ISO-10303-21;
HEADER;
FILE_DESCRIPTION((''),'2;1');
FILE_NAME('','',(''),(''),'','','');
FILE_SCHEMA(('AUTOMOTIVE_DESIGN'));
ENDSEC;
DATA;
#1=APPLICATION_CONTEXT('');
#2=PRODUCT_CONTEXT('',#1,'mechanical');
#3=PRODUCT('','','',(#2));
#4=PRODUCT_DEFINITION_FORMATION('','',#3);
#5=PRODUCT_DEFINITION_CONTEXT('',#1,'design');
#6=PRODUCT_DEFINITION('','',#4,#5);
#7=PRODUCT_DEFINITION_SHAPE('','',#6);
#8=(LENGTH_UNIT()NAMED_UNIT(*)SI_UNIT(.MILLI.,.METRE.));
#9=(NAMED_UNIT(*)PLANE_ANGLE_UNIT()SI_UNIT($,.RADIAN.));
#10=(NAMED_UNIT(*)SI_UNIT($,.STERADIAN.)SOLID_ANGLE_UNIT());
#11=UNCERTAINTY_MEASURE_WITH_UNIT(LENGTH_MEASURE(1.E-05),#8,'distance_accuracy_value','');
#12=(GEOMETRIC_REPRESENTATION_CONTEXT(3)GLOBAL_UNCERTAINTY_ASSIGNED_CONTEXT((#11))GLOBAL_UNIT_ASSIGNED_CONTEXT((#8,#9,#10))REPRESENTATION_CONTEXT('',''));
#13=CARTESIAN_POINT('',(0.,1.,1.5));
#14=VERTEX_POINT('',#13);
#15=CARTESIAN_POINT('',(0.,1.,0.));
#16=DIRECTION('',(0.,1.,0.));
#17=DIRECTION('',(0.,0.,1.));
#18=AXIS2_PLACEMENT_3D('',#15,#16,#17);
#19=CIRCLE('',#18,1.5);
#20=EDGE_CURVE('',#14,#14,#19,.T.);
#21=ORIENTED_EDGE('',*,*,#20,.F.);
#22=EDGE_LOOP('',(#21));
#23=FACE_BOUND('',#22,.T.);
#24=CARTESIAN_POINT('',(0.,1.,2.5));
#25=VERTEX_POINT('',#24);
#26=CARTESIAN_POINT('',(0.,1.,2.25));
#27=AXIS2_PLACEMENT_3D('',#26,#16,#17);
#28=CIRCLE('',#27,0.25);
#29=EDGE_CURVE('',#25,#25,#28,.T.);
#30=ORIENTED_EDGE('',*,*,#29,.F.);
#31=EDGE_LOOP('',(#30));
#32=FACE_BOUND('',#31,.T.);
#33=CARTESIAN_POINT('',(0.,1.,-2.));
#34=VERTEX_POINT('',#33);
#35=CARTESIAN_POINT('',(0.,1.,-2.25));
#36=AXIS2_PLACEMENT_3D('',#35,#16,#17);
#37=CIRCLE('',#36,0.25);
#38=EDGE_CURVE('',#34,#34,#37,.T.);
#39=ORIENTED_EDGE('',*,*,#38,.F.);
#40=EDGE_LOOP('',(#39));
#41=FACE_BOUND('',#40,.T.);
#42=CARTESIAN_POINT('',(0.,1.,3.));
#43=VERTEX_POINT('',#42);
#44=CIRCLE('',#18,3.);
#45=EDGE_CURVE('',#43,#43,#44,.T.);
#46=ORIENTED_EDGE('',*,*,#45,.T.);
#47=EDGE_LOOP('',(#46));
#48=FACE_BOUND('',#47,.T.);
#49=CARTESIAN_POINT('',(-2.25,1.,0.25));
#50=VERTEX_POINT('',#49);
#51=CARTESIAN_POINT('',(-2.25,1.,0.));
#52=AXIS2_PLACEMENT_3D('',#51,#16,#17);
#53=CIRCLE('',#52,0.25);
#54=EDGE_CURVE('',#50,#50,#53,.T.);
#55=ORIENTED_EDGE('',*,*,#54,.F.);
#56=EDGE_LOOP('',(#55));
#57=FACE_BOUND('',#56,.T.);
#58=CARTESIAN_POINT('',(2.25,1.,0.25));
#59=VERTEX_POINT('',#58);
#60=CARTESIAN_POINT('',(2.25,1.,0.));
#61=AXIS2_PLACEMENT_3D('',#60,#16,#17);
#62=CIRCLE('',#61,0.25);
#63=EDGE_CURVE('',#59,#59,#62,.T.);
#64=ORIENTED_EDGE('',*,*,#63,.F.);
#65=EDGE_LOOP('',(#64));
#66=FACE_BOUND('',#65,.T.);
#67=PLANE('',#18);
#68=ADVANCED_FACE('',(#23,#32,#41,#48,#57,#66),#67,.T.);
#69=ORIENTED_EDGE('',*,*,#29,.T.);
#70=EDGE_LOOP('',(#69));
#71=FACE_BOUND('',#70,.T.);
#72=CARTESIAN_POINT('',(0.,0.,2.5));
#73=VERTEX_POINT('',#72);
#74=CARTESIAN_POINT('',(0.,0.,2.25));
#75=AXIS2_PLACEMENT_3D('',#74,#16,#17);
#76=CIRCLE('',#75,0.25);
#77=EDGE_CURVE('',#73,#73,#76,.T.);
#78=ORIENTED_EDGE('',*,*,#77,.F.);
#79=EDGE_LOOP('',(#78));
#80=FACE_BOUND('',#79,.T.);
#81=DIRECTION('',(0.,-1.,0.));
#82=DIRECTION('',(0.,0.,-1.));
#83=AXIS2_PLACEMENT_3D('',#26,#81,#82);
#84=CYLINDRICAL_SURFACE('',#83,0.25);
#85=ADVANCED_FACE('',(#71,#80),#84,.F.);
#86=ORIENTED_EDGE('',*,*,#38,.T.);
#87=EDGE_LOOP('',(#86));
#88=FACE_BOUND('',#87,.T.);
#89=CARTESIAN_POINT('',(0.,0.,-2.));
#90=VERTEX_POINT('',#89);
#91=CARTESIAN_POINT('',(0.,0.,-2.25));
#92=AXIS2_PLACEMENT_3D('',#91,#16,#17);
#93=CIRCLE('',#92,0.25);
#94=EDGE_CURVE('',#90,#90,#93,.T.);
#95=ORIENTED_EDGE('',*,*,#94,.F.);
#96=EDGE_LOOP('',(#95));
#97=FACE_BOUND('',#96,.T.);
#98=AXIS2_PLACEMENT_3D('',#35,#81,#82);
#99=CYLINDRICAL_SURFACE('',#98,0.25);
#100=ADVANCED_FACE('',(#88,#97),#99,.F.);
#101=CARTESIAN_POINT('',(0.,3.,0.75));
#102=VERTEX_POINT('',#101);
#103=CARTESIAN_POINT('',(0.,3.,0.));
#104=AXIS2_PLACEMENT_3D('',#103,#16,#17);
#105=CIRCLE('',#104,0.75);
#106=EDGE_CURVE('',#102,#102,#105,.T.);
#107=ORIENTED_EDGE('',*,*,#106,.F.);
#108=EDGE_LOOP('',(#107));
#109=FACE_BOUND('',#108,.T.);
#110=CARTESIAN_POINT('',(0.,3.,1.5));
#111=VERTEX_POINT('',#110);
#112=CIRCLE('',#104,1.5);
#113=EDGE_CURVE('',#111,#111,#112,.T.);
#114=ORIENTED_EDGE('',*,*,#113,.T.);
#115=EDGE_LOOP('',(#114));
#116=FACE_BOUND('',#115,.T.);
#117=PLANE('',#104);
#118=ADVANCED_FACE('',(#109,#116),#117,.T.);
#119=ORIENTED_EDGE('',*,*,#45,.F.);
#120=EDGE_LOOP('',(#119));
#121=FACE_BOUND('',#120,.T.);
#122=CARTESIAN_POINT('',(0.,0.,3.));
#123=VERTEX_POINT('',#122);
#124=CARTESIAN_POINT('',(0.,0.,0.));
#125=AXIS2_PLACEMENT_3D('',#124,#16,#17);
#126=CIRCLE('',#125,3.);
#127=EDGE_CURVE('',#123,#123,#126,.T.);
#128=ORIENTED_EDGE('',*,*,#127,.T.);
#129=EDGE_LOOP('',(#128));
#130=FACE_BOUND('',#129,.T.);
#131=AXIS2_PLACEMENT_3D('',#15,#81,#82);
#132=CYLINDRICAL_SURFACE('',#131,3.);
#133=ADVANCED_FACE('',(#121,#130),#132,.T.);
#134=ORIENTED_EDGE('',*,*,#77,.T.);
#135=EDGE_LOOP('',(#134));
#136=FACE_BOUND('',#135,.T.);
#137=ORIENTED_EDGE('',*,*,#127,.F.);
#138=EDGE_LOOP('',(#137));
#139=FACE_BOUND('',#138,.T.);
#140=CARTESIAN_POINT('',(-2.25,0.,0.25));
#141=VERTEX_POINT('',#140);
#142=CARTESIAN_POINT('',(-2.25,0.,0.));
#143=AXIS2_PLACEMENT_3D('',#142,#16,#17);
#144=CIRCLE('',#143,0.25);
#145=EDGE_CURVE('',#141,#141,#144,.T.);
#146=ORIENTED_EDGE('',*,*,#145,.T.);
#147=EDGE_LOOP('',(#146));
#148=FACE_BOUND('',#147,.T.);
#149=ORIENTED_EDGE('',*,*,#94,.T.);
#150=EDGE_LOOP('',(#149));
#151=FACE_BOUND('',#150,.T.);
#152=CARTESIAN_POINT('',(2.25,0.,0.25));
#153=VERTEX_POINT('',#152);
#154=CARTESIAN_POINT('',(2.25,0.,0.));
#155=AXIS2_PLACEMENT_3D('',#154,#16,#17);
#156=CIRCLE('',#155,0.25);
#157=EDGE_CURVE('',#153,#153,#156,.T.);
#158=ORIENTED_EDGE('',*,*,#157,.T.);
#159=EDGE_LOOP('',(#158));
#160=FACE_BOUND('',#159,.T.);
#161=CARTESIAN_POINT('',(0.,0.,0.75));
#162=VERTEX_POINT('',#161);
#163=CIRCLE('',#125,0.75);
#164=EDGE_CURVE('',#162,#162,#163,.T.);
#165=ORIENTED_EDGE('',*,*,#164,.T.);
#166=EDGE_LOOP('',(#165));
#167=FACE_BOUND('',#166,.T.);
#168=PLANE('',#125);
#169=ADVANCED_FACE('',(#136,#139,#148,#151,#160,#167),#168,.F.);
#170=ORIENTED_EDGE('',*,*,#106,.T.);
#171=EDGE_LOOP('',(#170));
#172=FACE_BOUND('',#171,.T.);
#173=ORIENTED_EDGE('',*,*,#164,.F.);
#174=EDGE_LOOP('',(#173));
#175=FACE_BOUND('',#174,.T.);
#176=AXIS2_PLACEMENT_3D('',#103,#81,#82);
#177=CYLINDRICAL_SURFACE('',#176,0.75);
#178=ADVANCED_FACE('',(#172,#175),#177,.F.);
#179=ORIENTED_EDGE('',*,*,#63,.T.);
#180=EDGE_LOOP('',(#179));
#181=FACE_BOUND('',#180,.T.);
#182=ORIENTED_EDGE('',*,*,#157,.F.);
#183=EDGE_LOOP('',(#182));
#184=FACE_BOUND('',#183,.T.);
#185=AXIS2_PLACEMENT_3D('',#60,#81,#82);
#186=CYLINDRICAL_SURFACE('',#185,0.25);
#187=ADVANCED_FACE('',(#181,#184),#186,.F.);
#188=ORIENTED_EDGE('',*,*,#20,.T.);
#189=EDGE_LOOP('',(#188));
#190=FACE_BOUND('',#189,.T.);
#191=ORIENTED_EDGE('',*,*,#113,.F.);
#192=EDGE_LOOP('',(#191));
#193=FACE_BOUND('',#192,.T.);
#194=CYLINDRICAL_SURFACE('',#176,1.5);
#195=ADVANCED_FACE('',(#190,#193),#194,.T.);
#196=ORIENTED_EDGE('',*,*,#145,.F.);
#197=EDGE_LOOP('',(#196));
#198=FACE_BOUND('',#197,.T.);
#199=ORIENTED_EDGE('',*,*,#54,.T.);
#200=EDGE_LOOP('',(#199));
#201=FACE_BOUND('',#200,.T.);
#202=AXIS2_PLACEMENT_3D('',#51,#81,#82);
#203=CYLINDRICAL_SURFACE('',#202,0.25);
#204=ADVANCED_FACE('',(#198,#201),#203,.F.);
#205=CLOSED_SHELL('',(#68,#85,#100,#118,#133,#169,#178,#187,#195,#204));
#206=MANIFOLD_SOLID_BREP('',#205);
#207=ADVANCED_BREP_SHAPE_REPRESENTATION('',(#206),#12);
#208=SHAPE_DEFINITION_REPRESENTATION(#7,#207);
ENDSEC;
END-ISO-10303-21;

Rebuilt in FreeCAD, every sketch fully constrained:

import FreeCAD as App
import Part
import Sketcher
Q = App.Units.Quantity

doc = App.newDocument("Part")
body = doc.addObject("PartDesign::Body", "Body")

# Sketch on XZ plane
sketch1 = body.newObject("Sketcher::SketchObject", "Sketch")
sketch1.AttachmentSupport = (doc.getObject("XZ_Plane"), [""])
sketch1.MapMode = "FlatFace"
sketch1.addGeometry([
    Part.Circle(App.Vector(0, 0, 0), App.Vector(0, 0, 1), 3),  # 0
    Part.Circle(App.Vector(0, 2.25, 0), App.Vector(0, 0, 1), 0.25),  # 1
    Part.Circle(App.Vector(-2.25, 0, 0), App.Vector(0, 0, 1), 0.25),  # 2
    Part.Circle(App.Vector(0, 0, 0), App.Vector(0, 0, 1), 1.5),  # 3
    Part.Circle(App.Vector(2.25, 0, 0), App.Vector(0, 0, 1), 0.25),  # 4
    Part.Circle(App.Vector(0, -2.25, 0), App.Vector(0, 0, 1), 0.25),  # 5
], False)
sketch1.addConstraint([
    Sketcher.Constraint("Coincident", 0, 3, -1, 1),
    Sketcher.Constraint("Coincident", 3, 3, -1, 1),
    Sketcher.Constraint("Equal", 1, 2),
    Sketcher.Constraint("Equal", 2, 4),
    Sketcher.Constraint("Equal", 4, 5),
    Sketcher.Constraint("Symmetric", 2, 3, 4, 3, -1, 1),
    Sketcher.Constraint("Symmetric", 1, 3, 5, 3, -1, 1),
    Sketcher.Constraint("PointOnObject", 1, 3, -2),
    Sketcher.Constraint("PointOnObject", 2, 3, -1),
    Sketcher.Constraint("Diameter", 0, Q("6 mm")),
    Sketcher.Constraint("Diameter", 3, Q("3 mm")),
    Sketcher.Constraint("Diameter", 1, Q("0.5 mm")),
    Sketcher.Constraint("DistanceX", 2, 3, 4, 3, Q("4.5 mm")),
    Sketcher.Constraint("DistanceY", 5, 3, 1, 3, Q("4.5 mm")),
])
pad1 = body.newObject("PartDesign::Pad", "Pad")
pad1.Profile = sketch1
pad1.Length = 1
pad1.Reversed = True

# Sketch on XZ plane
sketch2 = body.newObject("Sketcher::SketchObject", "Sketch001")
sketch2.AttachmentSupport = (doc.getObject("XZ_Plane"), [""])
sketch2.MapMode = "FlatFace"
sketch2.addGeometry([
    Part.Circle(App.Vector(0, 0, 0), App.Vector(0, 0, 1), 1.5),
    Part.Circle(App.Vector(0, 0, 0), App.Vector(0, 0, 1), 0.8),
], False)
sketch2.addConstraint([
    Sketcher.Constraint("Coincident", 0, 3, -1, 1),
    Sketcher.Constraint("Coincident", 1, 3, -1, 1),
    Sketcher.Constraint("Diameter", 0, Q("3 mm")),
    Sketcher.Constraint("Diameter", 1, Q("1.5 mm")),
])
pad2 = body.newObject("PartDesign::Pad", "Pad001")
pad2.Profile = sketch2
pad2.Length = 3
pad2.Reversed = True

doc.recompute()
